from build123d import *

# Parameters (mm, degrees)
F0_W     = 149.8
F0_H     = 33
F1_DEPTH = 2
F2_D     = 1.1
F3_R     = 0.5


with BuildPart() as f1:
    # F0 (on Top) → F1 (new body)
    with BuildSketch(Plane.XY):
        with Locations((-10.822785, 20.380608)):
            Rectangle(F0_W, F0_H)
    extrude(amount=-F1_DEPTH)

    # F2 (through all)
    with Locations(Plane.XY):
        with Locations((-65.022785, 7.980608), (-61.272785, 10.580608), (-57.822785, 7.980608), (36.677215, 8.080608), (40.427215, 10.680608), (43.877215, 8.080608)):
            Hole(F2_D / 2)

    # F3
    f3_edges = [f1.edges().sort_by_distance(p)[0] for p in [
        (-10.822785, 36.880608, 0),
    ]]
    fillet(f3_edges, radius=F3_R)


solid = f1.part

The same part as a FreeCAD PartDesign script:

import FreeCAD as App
import Part
import Sketcher
from FreeCAD import Vector


def edges_at(feature, points):
    """Names of the edges that pass closest to the given points."""
    edges = feature.Shape.Edges
    near = lambda p: min(range(len(edges)), key=lambda i: edges[i].distToShape(Part.Vertex(*p))[0])
    return sorted({f"Edge{near(p) + 1}" for p in points})


def add_polygon(sketch, points):
    """Adds a closed chain of lines whose ends are joined by coincident constraints."""
    first, n = sketch.GeometryCount, len(points)
    for a, b in zip(points, points[1:] + points[:1]):
        sketch.addGeometry(Part.LineSegment(App.Vector(*a, 0), App.Vector(*b, 0)), False)
    for i in range(n):
        sketch.addConstraint(Sketcher.Constraint("Coincident", first + i, 2, first + (i + 1) % n, 1))

doc = App.newDocument("Part")
body = doc.addObject("PartDesign::Body", "Body")

sketch1 = body.newObject("Sketcher::SketchObject", "Sketch")
sketch1.AttachmentSupport = (doc.getObject("XY_Plane"), [""])
sketch1.MapMode = "FlatFace"
add_polygon(sketch1, [(-86, 37), (-86, 4), (64, 4), (64, 37)])
sketch1.addConstraint(Sketcher.Constraint("Vertical", 0))
sketch1.addConstraint(Sketcher.Constraint("Horizontal", 1))
sketch1.addConstraint(Sketcher.Constraint("Vertical", 2))
sketch1.addConstraint(Sketcher.Constraint("Horizontal", 3))
sketch1.addConstraint(Sketcher.Constraint("DistanceY", 0, 2, 0, 1, 33.0))
sketch1.addConstraint(Sketcher.Constraint("DistanceX", 1, 1, 1, 2, 149.8))
sketch1.addConstraint(Sketcher.Constraint("DistanceY", -1, 1, 0, 2, 3.880608))
sketch1.addConstraint(Sketcher.Constraint("DistanceX", 0, 2, -1, 1, 85.722785))
pad1 = body.newObject("PartDesign::Pad", "Pad")
pad1.Profile = sketch1
pad1.Length = 2
pad1.Reversed = True

sketch2 = body.newObject("Sketcher::SketchObject", "Sketch001")
sketch2.AttachmentSupport = (doc.getObject("XY_Plane"), [""])
sketch2.MapMode = "FlatFace"
sketch2.addGeometry(Part.Circle(Vector(-65, 8, 0), Vector(0, 0, 1), 0.6), False)
sketch2.addGeometry(Part.Circle(Vector(-61.3, 10.6, 0), Vector(0, 0, 1), 0.6), False)
sketch2.addGeometry(Part.Circle(Vector(-57.8, 8, 0), Vector(0, 0, 1), 0.6), False)
sketch2.addGeometry(Part.Circle(Vector(36.7, 8.1, 0), Vector(0, 0, 1), 0.6), False)
sketch2.addGeometry(Part.Circle(Vector(40.4, 10.7, 0), Vector(0, 0, 1), 0.6), False)
sketch2.addGeometry(Part.Circle(Vector(43.9, 8.1, 0), Vector(0, 0, 1), 0.6), False)
sketch2.addConstraint(Sketcher.Constraint("Equal", 0, 1))
sketch2.addConstraint(Sketcher.Constraint("Equal", 1, 2))
sketch2.addConstraint(Sketcher.Constraint("Equal", 2, 3))
sketch2.addConstraint(Sketcher.Constraint("Equal", 3, 4))
sketch2.addConstraint(Sketcher.Constraint("Equal", 4, 5))
sketch2.addConstraint(Sketcher.Constraint("Horizontal", 0, 3, 2, 3))
sketch2.addConstraint(Sketcher.Constraint("Horizontal", 3, 3, 5, 3))
sketch2.addConstraint(Sketcher.Constraint("Diameter", 0, 1.1))
sketch2.addConstraint(Sketcher.Constraint("DistanceY", 0, 3, 1, 3, 2.6))
sketch2.addConstraint(Sketcher.Constraint("DistanceX", 0, 3, 2, 3, 7.2))
sketch2.addConstraint(Sketcher.Constraint("DistanceX", 2, 3, 3, 3, 94.5))
sketch2.addConstraint(Sketcher.Constraint("DistanceY", 2, 3, 3, 3, 0.1))
sketch2.addConstraint(Sketcher.Constraint("DistanceY", 3, 3, 4, 3, 2.6))
sketch2.addConstraint(Sketcher.Constraint("DistanceX", 1, 3, 4, 3, 101.7))
sketch2.addConstraint(Sketcher.Constraint("DistanceX", 3, 3, 5, 3, 7.2))
sketch2.addConstraint(Sketcher.Constraint("DistanceX", 0, 3, 1, 3, 3.75))
sketch2.addConstraint(Sketcher.Constraint("DistanceX", 0, 3, -1, 1, 65.022785))
sketch2.addConstraint(Sketcher.Constraint("DistanceY", -1, 1, 0, 3, 7.980608))
doc.recompute()
hole = body.newObject("PartDesign::Hole", "Hole")
hole.Profile = sketch2
hole.ThreadType = "None"
hole.Diameter = 1.1
hole.DepthType = "ThroughAll"
doc.recompute()

fillet = body.newObject("PartDesign::Fillet", "Fillet")
fillet.Base = (hole, edges_at(hole, [(-10.823, 36.881, 0)]))
fillet.Radius = 0.5

doc.recompute()
